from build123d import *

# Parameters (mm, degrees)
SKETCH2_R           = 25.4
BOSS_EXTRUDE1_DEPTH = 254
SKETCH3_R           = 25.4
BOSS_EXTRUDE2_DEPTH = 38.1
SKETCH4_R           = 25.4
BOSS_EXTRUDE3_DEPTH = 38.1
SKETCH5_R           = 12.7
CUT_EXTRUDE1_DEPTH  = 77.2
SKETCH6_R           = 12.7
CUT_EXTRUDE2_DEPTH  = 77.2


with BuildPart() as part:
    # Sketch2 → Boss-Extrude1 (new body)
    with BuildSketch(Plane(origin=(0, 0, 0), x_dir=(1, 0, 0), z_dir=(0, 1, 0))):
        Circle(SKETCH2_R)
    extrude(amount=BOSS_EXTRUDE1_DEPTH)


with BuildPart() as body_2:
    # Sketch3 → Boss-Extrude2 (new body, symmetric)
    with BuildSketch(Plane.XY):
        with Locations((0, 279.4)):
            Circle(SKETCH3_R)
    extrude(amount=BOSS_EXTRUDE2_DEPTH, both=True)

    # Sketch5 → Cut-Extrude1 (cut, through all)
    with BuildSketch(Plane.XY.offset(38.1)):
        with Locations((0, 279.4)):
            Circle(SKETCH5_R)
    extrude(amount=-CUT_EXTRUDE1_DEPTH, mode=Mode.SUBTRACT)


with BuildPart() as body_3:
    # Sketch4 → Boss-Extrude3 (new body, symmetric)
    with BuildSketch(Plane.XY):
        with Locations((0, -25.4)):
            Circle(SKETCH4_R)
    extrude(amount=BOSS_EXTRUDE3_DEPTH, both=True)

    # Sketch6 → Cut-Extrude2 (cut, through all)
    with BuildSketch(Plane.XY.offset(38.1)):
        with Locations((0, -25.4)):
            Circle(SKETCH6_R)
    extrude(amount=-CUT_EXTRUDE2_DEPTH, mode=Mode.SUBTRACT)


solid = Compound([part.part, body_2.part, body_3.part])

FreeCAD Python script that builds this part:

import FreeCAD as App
import Part
import Sketcher
Q = App.Units.Quantity

doc = App.newDocument("Part")
params = doc.addObject("Spreadsheet::Sheet", "Params")
for row, (alias, value) in enumerate([
    ("sketch1_diameter", "2 in"),
    ("pad1_length", "10 in"),
    ("sketch2_diameter", "2 in"),
    ("pad2_length", "3 in"),
    ("sketch3_diameter", "1 in"),
    ("sketch4_diameter", "2 in"),
    ("pad3_length", "3 in"),
    ("sketch5_diameter", "1 in"),
], start=1):
    params.set(f"A{row}", alias)
    params.set(f"B{row}", "=" + value)
    params.setAlias(f"B{row}", alias)

body = doc.addObject("PartDesign::Body", "Body")

# Sketch on XZ plane
sketch1 = body.newObject("Sketcher::SketchObject", "Sketch")
sketch1.AttachmentSupport = (doc.getObject("XZ_Plane"), [""])
sketch1.MapMode = "FlatFace"
sketch1.addGeometry(Part.Circle(App.Vector(0, 0, 0), App.Vector(0, 0, 1), 25), False)
sketch1.addConstraint([
    Sketcher.Constraint("Coincident", 0, 3, -1, 1),
    Sketcher.Constraint("Diameter", 0, Q("2 in")),
])
sketch1.setExpression("Constraints[1]", "Params.sketch1_diameter")
pad1 = body.newObject("PartDesign::Pad", "Pad")
pad1.Profile = sketch1
pad1.setExpression("Length", "Params.pad1_length")
pad1.Reversed = True
body2 = doc.addObject("PartDesign::Body", "Body001")

# Sketch on XY plane
sketch2 = body2.newObject("Sketcher::SketchObject", "Sketch001")
sketch2.AttachmentSupport = (doc.getObject("XY_Plane001"), [""])
sketch2.MapMode = "FlatFace"
sketch2.addGeometry(Part.Circle(App.Vector(0, 279, 0), App.Vector(0, 0, 1), 25), False)
sketch2.addConstraint([
    Sketcher.Constraint("PointOnObject", 0, 3, -2),
    Sketcher.Constraint("Diameter", 0, Q("2 in")),
    Sketcher.Constraint("DistanceY", -1, 1, 0, 3, Q("11 in")),
])
sketch2.setExpression("Constraints[1]", "Params.sketch2_diameter")
pad2 = body2.newObject("PartDesign::Pad", "Pad001")
pad2.Profile = sketch2
pad2.setExpression("Length", "Params.pad2_length")
pad2.Midplane = True

# Sketch on XY plane
sketch3 = body2.newObject("Sketcher::SketchObject", "Sketch002")
sketch3.AttachmentSupport = (doc.getObject("XY_Plane001"), [""])
sketch3.MapMode = "FlatFace"
sketch3.AttachmentOffset = App.Placement(App.Vector(0, 0, 1.5 * 25.4), App.Rotation())
sketch3.addGeometry(Part.Circle(App.Vector(0, 279, 0), App.Vector(0, 0, 1), 13), False)
sketch3.addConstraint([
    Sketcher.Constraint("PointOnObject", 0, 3, -2),
    Sketcher.Constraint("Diameter", 0, Q("1 in")),
    Sketcher.Constraint("DistanceY", -1, 1, 0, 3, Q("11 in")),
])
sketch3.setExpression("Constraints[1]", "Params.sketch3_diameter")
pocket1 = body2.newObject("PartDesign::Pocket", "Pocket")
pocket1.Profile = sketch3
pocket1.Type = "ThroughAll"
body3 = doc.addObject("PartDesign::Body", "Body002")

# Sketch on XY plane
sketch4 = body3.newObject("Sketcher::SketchObject", "Sketch003")
sketch4.AttachmentSupport = (doc.getObject("XY_Plane002"), [""])
sketch4.MapMode = "FlatFace"
sketch4.addGeometry(Part.Circle(App.Vector(0, -25, 0), App.Vector(0, 0, 1), 25), False)
sketch4.addConstraint([
    Sketcher.Constraint("PointOnObject", 0, 3, -2),
    Sketcher.Constraint("Diameter", 0, Q("2 in")),
    Sketcher.Constraint("DistanceY", 0, 3, -1, 1, Q("1 in")),
])
sketch4.setExpression("Constraints[1]", "Params.sketch4_diameter")
pad3 = body3.newObject("PartDesign::Pad", "Pad002")
pad3.Profile = sketch4
pad3.setExpression("Length", "Params.pad3_length")
pad3.Midplane = True

# Sketch on XY plane
sketch5 = body3.newObject("Sketcher::SketchObject", "Sketch004")
sketch5.AttachmentSupport = (doc.getObject("XY_Plane002"), [""])
sketch5.MapMode = "FlatFace"
sketch5.AttachmentOffset = App.Placement(App.Vector(0, 0, 1.5 * 25.4), App.Rotation())
sketch5.addGeometry(Part.Circle(App.Vector(0, -25, 0), App.Vector(0, 0, 1), 13), False)
sketch5.addConstraint([
    Sketcher.Constraint("PointOnObject", 0, 3, -2),
    Sketcher.Constraint("Diameter", 0, Q("1 in")),
    Sketcher.Constraint("DistanceY", 0, 3, -1, 1, Q("1 in")),
])
sketch5.setExpression("Constraints[1]", "Params.sketch5_diameter")
pocket2 = body3.newObject("PartDesign::Pocket", "Pocket001")
pocket2.Profile = sketch5
pocket2.Type = "ThroughAll"

doc.recompute()
